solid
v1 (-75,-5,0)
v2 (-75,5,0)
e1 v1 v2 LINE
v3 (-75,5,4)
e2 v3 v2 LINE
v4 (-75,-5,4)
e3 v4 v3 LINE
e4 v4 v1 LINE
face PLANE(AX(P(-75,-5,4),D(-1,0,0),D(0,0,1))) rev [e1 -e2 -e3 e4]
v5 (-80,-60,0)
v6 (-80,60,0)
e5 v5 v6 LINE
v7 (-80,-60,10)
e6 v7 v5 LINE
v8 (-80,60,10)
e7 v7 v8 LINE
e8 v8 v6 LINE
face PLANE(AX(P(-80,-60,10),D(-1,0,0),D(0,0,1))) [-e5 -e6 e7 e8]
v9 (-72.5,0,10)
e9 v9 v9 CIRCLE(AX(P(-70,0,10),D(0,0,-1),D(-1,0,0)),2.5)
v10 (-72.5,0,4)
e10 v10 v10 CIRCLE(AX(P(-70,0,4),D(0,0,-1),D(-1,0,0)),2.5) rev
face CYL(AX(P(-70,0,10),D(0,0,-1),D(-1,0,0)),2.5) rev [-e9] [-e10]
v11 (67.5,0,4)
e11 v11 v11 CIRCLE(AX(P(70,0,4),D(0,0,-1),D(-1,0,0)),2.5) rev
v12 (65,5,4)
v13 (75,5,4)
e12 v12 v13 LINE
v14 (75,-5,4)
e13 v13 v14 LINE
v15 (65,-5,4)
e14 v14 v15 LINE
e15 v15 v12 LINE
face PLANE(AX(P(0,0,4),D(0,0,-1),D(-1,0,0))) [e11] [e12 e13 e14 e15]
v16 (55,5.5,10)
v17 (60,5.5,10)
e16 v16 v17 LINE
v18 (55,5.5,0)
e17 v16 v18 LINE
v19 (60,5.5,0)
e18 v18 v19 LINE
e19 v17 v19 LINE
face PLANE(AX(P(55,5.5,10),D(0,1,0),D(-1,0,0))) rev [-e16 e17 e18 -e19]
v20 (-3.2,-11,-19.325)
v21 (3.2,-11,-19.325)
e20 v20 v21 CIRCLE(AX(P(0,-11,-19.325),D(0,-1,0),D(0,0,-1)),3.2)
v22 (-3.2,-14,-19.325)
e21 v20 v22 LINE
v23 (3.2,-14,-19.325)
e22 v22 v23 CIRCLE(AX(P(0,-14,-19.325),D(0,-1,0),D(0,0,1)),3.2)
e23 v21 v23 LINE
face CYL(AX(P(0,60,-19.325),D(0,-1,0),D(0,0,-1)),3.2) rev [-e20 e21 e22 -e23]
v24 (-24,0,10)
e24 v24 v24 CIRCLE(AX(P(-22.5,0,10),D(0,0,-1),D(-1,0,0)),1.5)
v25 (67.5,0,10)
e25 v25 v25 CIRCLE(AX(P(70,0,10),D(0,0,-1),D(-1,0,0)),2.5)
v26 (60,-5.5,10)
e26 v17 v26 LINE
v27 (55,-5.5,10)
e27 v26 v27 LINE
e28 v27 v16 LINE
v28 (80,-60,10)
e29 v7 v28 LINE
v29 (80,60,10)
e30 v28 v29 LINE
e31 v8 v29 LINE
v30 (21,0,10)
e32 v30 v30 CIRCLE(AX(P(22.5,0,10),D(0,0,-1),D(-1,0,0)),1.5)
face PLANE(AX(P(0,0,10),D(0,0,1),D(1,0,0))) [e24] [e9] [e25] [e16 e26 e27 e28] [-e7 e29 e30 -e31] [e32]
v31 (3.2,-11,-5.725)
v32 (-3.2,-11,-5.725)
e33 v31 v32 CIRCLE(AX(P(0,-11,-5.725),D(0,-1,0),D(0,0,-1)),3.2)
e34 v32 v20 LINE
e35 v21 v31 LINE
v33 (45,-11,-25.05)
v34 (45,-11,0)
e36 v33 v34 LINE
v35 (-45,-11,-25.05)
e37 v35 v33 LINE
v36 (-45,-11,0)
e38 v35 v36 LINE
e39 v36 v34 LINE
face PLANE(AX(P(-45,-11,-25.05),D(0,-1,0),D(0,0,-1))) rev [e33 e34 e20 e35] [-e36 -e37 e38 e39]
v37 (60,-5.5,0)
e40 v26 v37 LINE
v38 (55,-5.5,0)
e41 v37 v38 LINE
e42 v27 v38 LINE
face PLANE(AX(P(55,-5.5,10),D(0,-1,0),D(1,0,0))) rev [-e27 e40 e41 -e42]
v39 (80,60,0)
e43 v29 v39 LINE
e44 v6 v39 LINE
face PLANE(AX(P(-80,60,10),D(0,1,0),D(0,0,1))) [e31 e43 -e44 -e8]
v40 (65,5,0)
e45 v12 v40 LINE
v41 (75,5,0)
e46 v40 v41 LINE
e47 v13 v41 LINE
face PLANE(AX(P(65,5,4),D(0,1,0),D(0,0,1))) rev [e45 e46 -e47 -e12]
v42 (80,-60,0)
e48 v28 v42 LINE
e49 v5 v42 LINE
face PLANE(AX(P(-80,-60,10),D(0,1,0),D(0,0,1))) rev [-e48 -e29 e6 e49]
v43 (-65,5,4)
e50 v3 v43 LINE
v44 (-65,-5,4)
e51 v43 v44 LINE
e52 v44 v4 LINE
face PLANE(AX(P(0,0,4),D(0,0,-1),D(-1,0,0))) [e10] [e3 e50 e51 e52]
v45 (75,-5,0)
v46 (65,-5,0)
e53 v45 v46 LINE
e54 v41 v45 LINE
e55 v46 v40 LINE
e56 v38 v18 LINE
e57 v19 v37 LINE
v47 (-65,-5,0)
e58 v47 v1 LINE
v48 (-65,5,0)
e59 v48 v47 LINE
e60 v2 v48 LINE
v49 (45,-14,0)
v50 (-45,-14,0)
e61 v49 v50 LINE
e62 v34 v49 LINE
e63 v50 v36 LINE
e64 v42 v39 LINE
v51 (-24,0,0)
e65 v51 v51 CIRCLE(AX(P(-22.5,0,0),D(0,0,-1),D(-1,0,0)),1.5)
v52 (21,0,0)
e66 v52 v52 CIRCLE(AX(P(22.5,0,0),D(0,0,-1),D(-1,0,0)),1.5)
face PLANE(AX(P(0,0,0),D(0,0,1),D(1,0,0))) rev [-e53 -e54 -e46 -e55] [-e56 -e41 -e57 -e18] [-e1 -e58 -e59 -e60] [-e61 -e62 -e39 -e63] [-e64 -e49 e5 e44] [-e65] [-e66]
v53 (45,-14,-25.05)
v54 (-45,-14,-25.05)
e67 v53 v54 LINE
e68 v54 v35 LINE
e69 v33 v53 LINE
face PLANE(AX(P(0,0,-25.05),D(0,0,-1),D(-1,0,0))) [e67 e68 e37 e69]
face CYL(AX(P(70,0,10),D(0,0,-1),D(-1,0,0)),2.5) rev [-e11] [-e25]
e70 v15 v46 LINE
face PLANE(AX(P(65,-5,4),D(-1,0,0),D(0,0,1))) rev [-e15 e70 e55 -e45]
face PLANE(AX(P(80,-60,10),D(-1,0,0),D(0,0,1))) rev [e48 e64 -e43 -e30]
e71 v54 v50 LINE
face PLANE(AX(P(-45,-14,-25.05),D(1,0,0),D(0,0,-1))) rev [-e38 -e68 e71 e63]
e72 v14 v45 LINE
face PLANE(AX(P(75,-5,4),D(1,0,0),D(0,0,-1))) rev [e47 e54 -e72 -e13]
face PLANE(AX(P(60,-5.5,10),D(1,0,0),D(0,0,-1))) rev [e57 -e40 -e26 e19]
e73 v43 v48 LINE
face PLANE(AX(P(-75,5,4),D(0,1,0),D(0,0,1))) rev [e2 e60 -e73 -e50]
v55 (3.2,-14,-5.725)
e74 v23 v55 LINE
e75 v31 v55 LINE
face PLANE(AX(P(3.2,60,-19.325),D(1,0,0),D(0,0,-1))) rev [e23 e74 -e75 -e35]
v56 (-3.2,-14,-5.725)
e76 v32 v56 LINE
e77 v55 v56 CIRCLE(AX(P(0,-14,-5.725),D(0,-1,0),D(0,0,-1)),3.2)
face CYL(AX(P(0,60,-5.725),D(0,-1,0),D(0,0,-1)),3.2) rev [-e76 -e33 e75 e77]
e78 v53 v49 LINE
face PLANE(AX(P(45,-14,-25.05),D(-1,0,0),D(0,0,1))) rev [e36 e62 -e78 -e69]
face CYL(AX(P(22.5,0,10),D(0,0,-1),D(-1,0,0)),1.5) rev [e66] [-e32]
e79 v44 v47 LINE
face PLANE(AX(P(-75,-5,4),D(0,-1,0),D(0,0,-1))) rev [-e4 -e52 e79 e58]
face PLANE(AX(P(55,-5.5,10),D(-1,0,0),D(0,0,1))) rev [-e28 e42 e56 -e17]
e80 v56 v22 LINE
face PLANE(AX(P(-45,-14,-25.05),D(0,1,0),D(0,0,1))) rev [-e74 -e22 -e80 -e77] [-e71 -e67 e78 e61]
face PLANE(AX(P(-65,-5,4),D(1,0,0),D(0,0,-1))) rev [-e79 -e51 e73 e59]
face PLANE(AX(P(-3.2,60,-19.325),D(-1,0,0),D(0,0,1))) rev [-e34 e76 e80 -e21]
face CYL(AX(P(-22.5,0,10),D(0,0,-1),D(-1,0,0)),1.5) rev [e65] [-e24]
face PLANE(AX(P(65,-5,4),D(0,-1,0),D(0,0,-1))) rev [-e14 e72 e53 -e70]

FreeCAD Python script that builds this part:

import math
import FreeCAD as App
import Part
import Sketcher

V = App.Vector

doc = App.newDocument("Part")
body = doc.addObject("PartDesign::Body", "Body")

sketch1 = doc.addObject("Sketcher::SketchObject", "Sketch")
body.addObject(sketch1)
sketch1.AttachmentSupport = (doc.XY_Plane, [""])
sketch1.MapMode = "FlatFace"
sketch1.addGeometry(Part.LineSegment(V(-80, 60, 0), V(-80, -60, 0)), False)
sketch1.addGeometry(Part.LineSegment(V(-80, -60, 0), V(80, -60, 0)), False)
sketch1.addGeometry(Part.LineSegment(V(80, -60, 0), V(80, 60, 0)), False)
sketch1.addGeometry(Part.LineSegment(V(80, 60, 0), V(-80, 60, 0)), False)
sketch1.addConstraint(Sketcher.Constraint("Coincident", 0, 2, 1, 1))
sketch1.addConstraint(Sketcher.Constraint("Coincident", 1, 2, 2, 1))
sketch1.addConstraint(Sketcher.Constraint("Coincident", 2, 2, 3, 1))
sketch1.addConstraint(Sketcher.Constraint("Coincident", 3, 2, 0, 1))
sketch1.addConstraint(Sketcher.Constraint("Vertical", 0))
sketch1.addConstraint(Sketcher.Constraint("Horizontal", 1))
sketch1.addConstraint(Sketcher.Constraint("Vertical", 2))
sketch1.addConstraint(Sketcher.Constraint("Horizontal", 3))
sketch1.addConstraint(Sketcher.Constraint("Symmetric", 0, 2, 2, 2, -1, 1))
sketch1.addConstraint(Sketcher.Constraint("DistanceX", 1, 1, 1, 2, 160.0))
sketch1.addConstraint(Sketcher.Constraint("DistanceY", 0, 2, 0, 1, 120.0))
pad1 = doc.addObject("PartDesign::Pad", "Pad")
body.addObject(pad1)
pad1.Profile = sketch1
pad1.Length = 10

sketch2 = doc.addObject("Sketcher::SketchObject", "Sketch001")
body.addObject(sketch2)
sketch2.AttachmentSupport = (doc.XY_Plane, [""])
sketch2.MapMode = "FlatFace"
sketch2.addGeometry(Part.Circle(V(22.5, 0, 0), V(0, 0, 1), 1.5), False)
sketch2.addGeometry(Part.Circle(V(-22.5, 0, 0), V(0, 0, 1), 1.5), False)
sketch2.addGeometry(Part.Circle(V(-70, 0, 0), V(0, 0, 1), 2.5), False)
sketch2.addGeometry(Part.Circle(V(70, 0, 0), V(0, 0, 1), 2.5), False)
sketch2.addGeometry(Part.LineSegment(V(60, 5.5, 0), V(60, -5.5, 0)), False)
sketch2.addGeometry(Part.LineSegment(V(60, -5.5, 0), V(55, -5.5, 0)), False)
sketch2.addGeometry(Part.LineSegment(V(55, -5.5, 0), V(55, 5.5, 0)), False)
sketch2.addGeometry(Part.LineSegment(V(55, 5.5, 0), V(60, 5.5, 0)), False)
sketch2.addConstraint(Sketcher.Constraint("Coincident", 4, 2, 5, 1))
sketch2.addConstraint(Sketcher.Constraint("Coincident", 5, 2, 6, 1))
sketch2.addConstraint(Sketcher.Constraint("Coincident", 6, 2, 7, 1))
sketch2.addConstraint(Sketcher.Constraint("Coincident", 7, 2, 4, 1))
sketch2.addConstraint(Sketcher.Constraint("Vertical", 4))
sketch2.addConstraint(Sketcher.Constraint("Horizontal", 5))
sketch2.addConstraint(Sketcher.Constraint("Vertical", 6))
sketch2.addConstraint(Sketcher.Constraint("Horizontal", 7))
sketch2.addConstraint(Sketcher.Constraint("Equal", 0, 1))
sketch2.addConstraint(Sketcher.Constraint("Equal", 2, 3))
sketch2.addConstraint(Sketcher.Constraint("Symmetric", 0, 3, 1, 3, -1, 1))
sketch2.addConstraint(Sketcher.Constraint("Symmetric", 2, 3, 3, 3, -1, 1))
sketch2.addConstraint(Sketcher.Constraint("PointOnObject", 0, 3, -1))
sketch2.addConstraint(Sketcher.Constraint("PointOnObject", 2, 3, -1))
sketch2.addConstraint(Sketcher.Constraint("Diameter", 0, 3.0))
sketch2.addConstraint(Sketcher.Constraint("Diameter", 2, 5.0))
sketch2.addConstraint(Sketcher.Constraint("DistanceX", 5, 2, 5, 1, 5.0))
sketch2.addConstraint(Sketcher.Constraint("DistanceY", 4, 2, 4, 1, 11.0))
sketch2.addConstraint(Sketcher.Constraint("DistanceX", 2, 3, -1, 1, 70.0))
sketch2.addConstraint(Sketcher.Constraint("DistanceX", -1, 1, 4, 2, 60.0))
sketch2.addConstraint(Sketcher.Constraint("DistanceX", 1, 3, 0, 3, 45.0))
sketch2.addConstraint(Sketcher.Constraint("DistanceY", 4, 2, -1, 1, 5.5))
pocket1 = doc.addObject("PartDesign::Pocket", "Pocket")
body.addObject(pocket1)
pocket1.Profile = sketch2
pocket1.Type = "ThroughAll"
pocket1.Reversed = True

sketch3 = doc.addObject("Sketcher::SketchObject", "Sketch002")
body.addObject(sketch3)
sketch3.AttachmentSupport = (doc.XY_Plane, [""])
sketch3.MapMode = "FlatFace"
sketch3.addGeometry(Part.LineSegment(V(75, 5, 0), V(75, -5, 0)), False)
sketch3.addGeometry(Part.LineSegment(V(75, -5, 0), V(65, -5, 0)), False)
sketch3.addGeometry(Part.LineSegment(V(65, -5, 0), V(65, 5, 0)), False)
sketch3.addGeometry(Part.LineSegment(V(65, 5, 0), V(75, 5, 0)), False)
sketch3.addGeometry(Part.LineSegment(V(-65, 5, 0), V(-65, -5, 0)), False)
sketch3.addGeometry(Part.LineSegment(V(-65, -5, 0), V(-75, -5, 0)), False)
sketch3.addGeometry(Part.LineSegment(V(-75, -5, 0), V(-75, 5, 0)), False)
sketch3.addGeometry(Part.LineSegment(V(-75, 5, 0), V(-65, 5, 0)), False)
sketch3.addConstraint(Sketcher.Constraint("Coincident", 0, 2, 1, 1))
sketch3.addConstraint(Sketcher.Constraint("Coincident", 1, 2, 2, 1))
sketch3.addConstraint(Sketcher.Constraint("Coincident", 2, 2, 3, 1))
sketch3.addConstraint(Sketcher.Constraint("Coincident", 3, 2, 0, 1))
sketch3.addConstraint(Sketcher.Constraint("Coincident", 4, 2, 5, 1))
sketch3.addConstraint(Sketcher.Constraint("Coincident", 5, 2, 6, 1))
sketch3.addConstraint(Sketcher.Constraint("Coincident", 6, 2, 7, 1))
sketch3.addConstraint(Sketcher.Constraint("Coincident", 7, 2, 4, 1))
sketch3.addConstraint(Sketcher.Constraint("Vertical", 0))
sketch3.addConstraint(Sketcher.Constraint("Horizontal", 1))
sketch3.addConstraint(Sketcher.Constraint("Vertical", 2))
sketch3.addConstraint(Sketcher.Constraint("Horizontal", 3))
sketch3.addConstraint(Sketcher.Constraint("Vertical", 4))
sketch3.addConstraint(Sketcher.Constraint("Horizontal", 5))
sketch3.addConstraint(Sketcher.Constraint("Vertical", 6))
sketch3.addConstraint(Sketcher.Constraint("Horizontal", 7))
sketch3.addConstraint(Sketcher.Constraint("Symmetric", 2, 2, 4, 2, -1, 1))
sketch3.addConstraint(Sketcher.Constraint("Symmetric", 0, 2, 6, 2, -1, 1))
sketch3.addConstraint(Sketcher.Constraint("Horizontal", 1, 2, 4, 2))
sketch3.addConstraint(Sketcher.Constraint("Equal", 7, 0))
sketch3.addConstraint(Sketcher.Constraint("DistanceX", 1, 2, 1, 1, 10.0))
sketch3.addConstraint(Sketcher.Constraint("DistanceX", -1, 1, 0, 2, 75.0))
pocket2 = doc.addObject("PartDesign::Pocket", "Pocket001")
body.addObject(pocket2)
pocket2.Profile = sketch3
pocket2.Length = 4
pocket2.Reversed = True

sketch4 = doc.addObject("Sketcher::SketchObject", "Sketch003")
body.addObject(sketch4)
sketch4.AttachmentSupport = (doc.XY_Plane, [""])
sketch4.MapMode = "FlatFace"
sketch4.addGeometry(Part.LineSegment(V(45, -11, 0), V(45, -14, 0)), False)
sketch4.addGeometry(Part.LineSegment(V(45, -14, 0), V(-45, -14, 0)), False)
sketch4.addGeometry(Part.LineSegment(V(-45, -14, 0), V(-45, -11, 0)), False)
sketch4.addGeometry(Part.LineSegment(V(-45, -11, 0), V(45, -11, 0)), False)
sketch4.addConstraint(Sketcher.Constraint("Coincident", 0, 2, 1, 1))
sketch4.addConstraint(Sketcher.Constraint("Coincident", 1, 2, 2, 1))
sketch4.addConstraint(Sketcher.Constraint("Coincident", 2, 2, 3, 1))
sketch4.addConstraint(Sketcher.Constraint("Coincident", 3, 2, 0, 1))
sketch4.addConstraint(Sketcher.Constraint("Vertical", 0))
sketch4.addConstraint(Sketcher.Constraint("Horizontal", 1))
sketch4.addConstraint(Sketcher.Constraint("Vertical", 2))
sketch4.addConstraint(Sketcher.Constraint("Horizontal", 3))
sketch4.addConstraint(Sketcher.Constraint("DistanceX", 1, 2, 1, 1, 90.0))
sketch4.addConstraint(Sketcher.Constraint("DistanceY", 0, 2, 0, 1, 3.0))
sketch4.addConstraint(Sketcher.Constraint("DistanceX", -1, 1, 0, 2, 45.0))
sketch4.addConstraint(Sketcher.Constraint("DistanceY", 0, 2, -1, 1, 14.0))
pad2 = doc.addObject("PartDesign::Pad", "Pad001")
body.addObject(pad2)
pad2.Profile = sketch4
pad2.Length = 25.05
pad2.Reversed = True

sketch5 = doc.addObject("Sketcher::SketchObject", "Sketch004")
body.addObject(sketch5)
sketch5.AttachmentSupport = (doc.XZ_Plane, [""])
sketch5.MapMode = "FlatFace"
sketch5.AttachmentOffset = App.Placement(V(0, 0, 14), App.Rotation())
sketch5.addGeometry(Part.LineSegment(V(3.2, -19.3, 0), V(3.2, -5.7, 0)), False)
sketch5.addGeometry(Part.ArcOfCircle(Part.Circle(V(0, -5.7, 0), V(0, 0, 1), 3.2), math.radians(0), math.radians(180)), False)
sketch5.addGeometry(Part.LineSegment(V(-3.2, -5.7, 0), V(-3.2, -19.3, 0)), False)
sketch5.addGeometry(Part.ArcOfCircle(Part.Circle(V(0, -19.3, 0), V(0, 0, 1), 3.2), math.radians(180), math.radians(360)), False)
sketch5.addConstraint(Sketcher.Constraint("Tangent", 0, 2, 1, 1))
sketch5.addConstraint(Sketcher.Constraint("Tangent", 1, 2, 2, 1))
sketch5.addConstraint(Sketcher.Constraint("Tangent", 2, 2, 3, 1))
sketch5.addConstraint(Sketcher.Constraint("Tangent", 3, 2, 0, 1))
sketch5.addConstraint(Sketcher.Constraint("Vertical", 0))
sketch5.addConstraint(Sketcher.Constraint("Vertical", 2))
sketch5.addConstraint(Sketcher.Constraint("PointOnObject", 1, 3, -2))
sketch5.addConstraint(Sketcher.Constraint("Radius", 1, 3.2))
sketch5.addConstraint(Sketcher.Constraint("DistanceY", 0, 1, 0, 2, 13.6))
sketch5.addConstraint(Sketcher.Constraint("DistanceY", 1, 3, -1, 1, 5.725))
pocket3 = doc.addObject("PartDesign::Pocket", "Pocket002")
body.addObject(pocket3)
pocket3.Profile = sketch5
pocket3.Type = "ThroughAll"

doc.recompute()
